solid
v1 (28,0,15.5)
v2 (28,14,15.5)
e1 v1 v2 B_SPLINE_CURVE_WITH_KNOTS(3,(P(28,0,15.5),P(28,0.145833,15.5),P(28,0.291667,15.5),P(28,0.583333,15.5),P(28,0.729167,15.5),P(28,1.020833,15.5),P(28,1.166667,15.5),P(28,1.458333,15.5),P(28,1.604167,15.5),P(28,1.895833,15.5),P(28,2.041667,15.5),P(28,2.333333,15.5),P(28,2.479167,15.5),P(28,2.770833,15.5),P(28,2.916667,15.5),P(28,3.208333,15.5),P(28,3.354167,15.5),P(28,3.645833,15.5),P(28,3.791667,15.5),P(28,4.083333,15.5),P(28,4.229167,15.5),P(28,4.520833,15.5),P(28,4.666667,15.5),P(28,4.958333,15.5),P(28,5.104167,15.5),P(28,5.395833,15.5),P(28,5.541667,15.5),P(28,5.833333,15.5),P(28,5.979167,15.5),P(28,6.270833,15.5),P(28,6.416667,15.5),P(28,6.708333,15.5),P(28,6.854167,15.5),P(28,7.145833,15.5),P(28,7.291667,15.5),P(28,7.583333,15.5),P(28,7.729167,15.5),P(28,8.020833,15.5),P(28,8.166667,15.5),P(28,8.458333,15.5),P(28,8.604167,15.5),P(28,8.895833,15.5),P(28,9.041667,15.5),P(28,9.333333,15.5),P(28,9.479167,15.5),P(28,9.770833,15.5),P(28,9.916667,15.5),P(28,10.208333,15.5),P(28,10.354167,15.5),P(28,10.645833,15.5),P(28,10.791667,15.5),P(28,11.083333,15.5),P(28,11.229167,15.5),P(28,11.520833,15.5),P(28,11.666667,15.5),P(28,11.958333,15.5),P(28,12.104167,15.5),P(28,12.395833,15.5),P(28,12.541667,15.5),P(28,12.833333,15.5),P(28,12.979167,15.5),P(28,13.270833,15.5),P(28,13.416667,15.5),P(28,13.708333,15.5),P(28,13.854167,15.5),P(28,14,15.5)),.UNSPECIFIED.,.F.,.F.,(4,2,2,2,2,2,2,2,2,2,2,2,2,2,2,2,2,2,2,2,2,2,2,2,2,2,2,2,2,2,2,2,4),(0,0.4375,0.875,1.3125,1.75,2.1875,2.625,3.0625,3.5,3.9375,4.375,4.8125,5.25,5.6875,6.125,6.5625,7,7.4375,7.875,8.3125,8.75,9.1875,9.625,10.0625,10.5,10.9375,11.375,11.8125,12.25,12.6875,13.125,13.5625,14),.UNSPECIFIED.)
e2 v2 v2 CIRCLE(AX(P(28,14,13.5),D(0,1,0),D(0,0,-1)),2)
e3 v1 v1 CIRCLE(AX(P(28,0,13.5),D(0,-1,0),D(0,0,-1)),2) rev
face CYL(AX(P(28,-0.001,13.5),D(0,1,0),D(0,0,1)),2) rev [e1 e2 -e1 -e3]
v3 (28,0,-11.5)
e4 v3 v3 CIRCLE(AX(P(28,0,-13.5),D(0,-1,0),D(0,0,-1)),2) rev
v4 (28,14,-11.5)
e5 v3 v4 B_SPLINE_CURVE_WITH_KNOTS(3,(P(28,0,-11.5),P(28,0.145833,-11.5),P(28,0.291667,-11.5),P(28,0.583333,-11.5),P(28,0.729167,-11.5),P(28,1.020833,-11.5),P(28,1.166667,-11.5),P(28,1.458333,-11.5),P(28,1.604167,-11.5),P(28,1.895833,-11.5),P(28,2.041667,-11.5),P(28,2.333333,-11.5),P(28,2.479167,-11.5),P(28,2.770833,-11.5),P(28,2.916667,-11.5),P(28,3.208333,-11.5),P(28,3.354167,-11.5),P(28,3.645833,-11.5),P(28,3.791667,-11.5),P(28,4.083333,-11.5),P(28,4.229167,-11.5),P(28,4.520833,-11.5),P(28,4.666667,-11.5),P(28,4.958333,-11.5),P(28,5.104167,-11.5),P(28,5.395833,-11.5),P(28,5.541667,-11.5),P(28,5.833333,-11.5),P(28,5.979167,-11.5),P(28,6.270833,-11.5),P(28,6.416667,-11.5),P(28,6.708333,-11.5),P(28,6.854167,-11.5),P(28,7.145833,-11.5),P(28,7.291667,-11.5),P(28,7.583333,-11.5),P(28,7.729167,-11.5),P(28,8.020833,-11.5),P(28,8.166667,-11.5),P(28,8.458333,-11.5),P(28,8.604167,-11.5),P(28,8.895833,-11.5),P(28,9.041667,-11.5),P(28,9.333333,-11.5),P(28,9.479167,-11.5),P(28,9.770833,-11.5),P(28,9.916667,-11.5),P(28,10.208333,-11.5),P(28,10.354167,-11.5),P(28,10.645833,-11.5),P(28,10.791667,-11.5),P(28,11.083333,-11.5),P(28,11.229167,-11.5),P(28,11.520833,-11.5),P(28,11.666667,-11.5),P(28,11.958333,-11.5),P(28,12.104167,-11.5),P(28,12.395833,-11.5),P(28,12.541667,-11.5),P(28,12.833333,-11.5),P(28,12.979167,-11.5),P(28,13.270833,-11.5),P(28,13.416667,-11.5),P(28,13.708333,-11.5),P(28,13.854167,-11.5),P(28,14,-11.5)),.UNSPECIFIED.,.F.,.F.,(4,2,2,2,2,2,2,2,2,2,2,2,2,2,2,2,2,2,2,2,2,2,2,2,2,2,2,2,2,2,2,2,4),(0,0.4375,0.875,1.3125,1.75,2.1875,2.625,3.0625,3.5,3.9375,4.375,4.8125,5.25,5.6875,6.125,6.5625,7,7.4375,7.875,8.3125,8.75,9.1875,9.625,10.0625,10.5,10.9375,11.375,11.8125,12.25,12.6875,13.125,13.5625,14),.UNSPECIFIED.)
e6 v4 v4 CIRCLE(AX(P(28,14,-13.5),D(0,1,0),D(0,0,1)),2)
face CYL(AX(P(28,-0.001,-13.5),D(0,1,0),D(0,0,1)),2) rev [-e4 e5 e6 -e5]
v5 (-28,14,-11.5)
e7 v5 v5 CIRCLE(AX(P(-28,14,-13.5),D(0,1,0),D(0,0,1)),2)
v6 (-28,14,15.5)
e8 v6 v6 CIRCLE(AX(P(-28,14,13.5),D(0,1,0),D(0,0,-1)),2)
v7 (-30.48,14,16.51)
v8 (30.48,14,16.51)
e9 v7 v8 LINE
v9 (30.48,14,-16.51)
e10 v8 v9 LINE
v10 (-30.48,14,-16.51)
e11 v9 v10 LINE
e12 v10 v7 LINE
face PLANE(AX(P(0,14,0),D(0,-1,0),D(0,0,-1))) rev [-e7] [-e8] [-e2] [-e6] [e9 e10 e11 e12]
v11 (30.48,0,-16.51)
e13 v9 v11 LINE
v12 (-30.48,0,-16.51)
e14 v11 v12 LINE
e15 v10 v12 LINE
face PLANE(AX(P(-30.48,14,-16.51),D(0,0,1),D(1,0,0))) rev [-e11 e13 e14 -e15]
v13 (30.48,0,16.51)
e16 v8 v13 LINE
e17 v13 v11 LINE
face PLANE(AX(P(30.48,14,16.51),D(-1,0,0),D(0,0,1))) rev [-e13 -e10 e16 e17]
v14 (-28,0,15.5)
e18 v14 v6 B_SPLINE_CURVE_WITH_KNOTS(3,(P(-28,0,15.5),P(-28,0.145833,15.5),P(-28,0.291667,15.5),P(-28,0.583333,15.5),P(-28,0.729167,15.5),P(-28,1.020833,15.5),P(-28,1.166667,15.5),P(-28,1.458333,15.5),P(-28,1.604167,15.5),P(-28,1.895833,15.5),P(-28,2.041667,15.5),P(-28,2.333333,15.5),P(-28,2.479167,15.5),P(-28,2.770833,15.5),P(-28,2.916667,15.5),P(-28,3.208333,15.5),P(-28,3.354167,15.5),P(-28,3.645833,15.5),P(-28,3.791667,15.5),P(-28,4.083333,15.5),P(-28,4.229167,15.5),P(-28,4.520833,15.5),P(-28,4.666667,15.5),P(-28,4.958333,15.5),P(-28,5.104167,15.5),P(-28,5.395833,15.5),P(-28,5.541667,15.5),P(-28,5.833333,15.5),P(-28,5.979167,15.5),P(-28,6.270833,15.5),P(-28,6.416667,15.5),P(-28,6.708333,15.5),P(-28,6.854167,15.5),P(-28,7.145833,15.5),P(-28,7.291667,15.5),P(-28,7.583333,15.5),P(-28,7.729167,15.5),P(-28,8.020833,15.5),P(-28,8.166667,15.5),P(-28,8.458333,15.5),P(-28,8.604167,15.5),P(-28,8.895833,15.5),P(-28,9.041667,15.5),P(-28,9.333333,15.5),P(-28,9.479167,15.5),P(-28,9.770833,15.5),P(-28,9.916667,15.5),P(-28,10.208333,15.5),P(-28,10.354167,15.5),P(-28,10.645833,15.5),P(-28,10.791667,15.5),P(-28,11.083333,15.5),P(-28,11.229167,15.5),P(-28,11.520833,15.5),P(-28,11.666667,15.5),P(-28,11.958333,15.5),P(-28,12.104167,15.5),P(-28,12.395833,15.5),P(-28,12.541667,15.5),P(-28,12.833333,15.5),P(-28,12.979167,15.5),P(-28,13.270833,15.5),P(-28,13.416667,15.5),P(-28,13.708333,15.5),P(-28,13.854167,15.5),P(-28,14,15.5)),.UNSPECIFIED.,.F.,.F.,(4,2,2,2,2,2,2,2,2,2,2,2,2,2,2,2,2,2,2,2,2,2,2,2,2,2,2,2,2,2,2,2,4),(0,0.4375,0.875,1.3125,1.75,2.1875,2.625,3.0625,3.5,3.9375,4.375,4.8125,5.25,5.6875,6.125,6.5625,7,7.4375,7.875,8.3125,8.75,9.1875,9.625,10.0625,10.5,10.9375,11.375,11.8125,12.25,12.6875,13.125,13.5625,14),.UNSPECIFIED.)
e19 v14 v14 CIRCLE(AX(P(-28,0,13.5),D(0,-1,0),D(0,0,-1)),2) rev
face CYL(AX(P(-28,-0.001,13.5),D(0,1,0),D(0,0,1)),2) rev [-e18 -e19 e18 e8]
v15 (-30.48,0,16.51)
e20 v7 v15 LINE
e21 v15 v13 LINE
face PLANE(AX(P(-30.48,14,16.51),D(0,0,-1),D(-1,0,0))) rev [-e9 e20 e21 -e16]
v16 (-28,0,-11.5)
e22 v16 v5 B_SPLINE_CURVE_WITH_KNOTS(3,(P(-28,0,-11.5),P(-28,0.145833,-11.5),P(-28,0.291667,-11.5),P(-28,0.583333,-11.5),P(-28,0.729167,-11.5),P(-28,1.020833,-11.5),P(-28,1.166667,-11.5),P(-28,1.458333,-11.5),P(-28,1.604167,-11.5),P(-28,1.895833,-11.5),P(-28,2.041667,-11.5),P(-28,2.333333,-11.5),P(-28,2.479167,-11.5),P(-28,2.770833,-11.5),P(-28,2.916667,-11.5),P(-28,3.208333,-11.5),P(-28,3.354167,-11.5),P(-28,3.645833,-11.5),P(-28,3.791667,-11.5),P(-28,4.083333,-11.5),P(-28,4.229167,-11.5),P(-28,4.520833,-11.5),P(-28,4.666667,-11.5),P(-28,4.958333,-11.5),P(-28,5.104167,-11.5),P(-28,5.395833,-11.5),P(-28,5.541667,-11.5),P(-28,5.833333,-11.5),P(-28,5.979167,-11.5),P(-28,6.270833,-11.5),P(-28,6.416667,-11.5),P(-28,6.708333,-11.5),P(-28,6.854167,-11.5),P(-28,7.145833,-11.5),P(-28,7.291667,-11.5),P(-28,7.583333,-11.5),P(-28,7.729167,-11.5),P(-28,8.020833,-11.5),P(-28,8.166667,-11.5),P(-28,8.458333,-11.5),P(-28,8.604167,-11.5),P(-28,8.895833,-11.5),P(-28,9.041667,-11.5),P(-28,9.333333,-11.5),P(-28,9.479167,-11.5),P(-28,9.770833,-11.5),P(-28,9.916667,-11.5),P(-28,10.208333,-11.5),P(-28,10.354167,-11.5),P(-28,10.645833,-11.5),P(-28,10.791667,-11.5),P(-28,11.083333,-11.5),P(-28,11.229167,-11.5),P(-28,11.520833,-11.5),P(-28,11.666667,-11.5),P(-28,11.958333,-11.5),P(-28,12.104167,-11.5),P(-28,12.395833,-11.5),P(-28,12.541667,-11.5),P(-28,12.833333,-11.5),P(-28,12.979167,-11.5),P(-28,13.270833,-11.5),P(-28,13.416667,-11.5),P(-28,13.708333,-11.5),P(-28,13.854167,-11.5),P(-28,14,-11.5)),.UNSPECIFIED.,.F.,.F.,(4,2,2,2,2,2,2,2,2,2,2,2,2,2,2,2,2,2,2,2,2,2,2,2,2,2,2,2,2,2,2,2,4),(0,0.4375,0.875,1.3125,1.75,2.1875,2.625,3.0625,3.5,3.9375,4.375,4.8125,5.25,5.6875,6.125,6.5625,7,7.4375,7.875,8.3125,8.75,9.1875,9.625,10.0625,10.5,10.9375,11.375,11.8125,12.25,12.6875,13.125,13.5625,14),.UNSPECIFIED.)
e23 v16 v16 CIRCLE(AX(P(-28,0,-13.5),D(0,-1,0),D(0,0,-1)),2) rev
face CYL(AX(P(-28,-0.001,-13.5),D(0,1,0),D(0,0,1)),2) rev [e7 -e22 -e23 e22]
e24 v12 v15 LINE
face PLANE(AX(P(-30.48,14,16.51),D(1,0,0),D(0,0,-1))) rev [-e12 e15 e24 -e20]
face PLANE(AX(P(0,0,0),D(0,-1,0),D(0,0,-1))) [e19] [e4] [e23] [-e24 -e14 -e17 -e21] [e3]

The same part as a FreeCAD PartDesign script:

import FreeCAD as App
import Part
import Sketcher

V = App.Vector

doc = App.newDocument("Part")
params = doc.addObject("Spreadsheet::Sheet", "Params")
for row, (alias, value) in enumerate([
    ("sketch1_width", "60.96 mm"),
    ("sketch1_height", "33.02 mm"),
    ("pad1_length", "14 mm"),
    ("sketch2_diameter", "4 mm"),
    ("sketch3_diameter", "4 mm"),
    ("sketch4_diameter", "4 mm"),
    ("sketch5_diameter", "4 mm"),
], start=1):
    params.set(f"A{row}", alias)
    params.set(f"B{row}", "=" + value)
    params.setAlias(f"B{row}", alias)

body = doc.addObject("PartDesign::Body", "Body")

# Sketch on XZ plane
sketch1 = doc.addObject("Sketcher::SketchObject", "Sketch")
body.addObject(sketch1)
sketch1.AttachmentSupport = (doc.XZ_Plane, [""])
sketch1.MapMode = "FlatFace"
sketch1.addGeometry([
    Part.LineSegment(V(-30, -17, 0), V(-30, 17, 0)),
    Part.LineSegment(V(-30, 17, 0), V(30, 17, 0)),
    Part.LineSegment(V(30, 17, 0), V(30, -17, 0)),
    Part.LineSegment(V(30, -17, 0), V(-30, -17, 0)),
], False)
sketch1.addConstraint([
    Sketcher.Constraint("Coincident", 0, 2, 1, 1),
    Sketcher.Constraint("Coincident", 1, 2, 2, 1),
    Sketcher.Constraint("Coincident", 2, 2, 3, 1),
    Sketcher.Constraint("Coincident", 3, 2, 0, 1),
    Sketcher.Constraint("Vertical", 0),
    Sketcher.Constraint("Horizontal", 1),
    Sketcher.Constraint("Vertical", 2),
    Sketcher.Constraint("Horizontal", 3),
    Sketcher.Constraint("Symmetric", 0, 2, 2, 2, -1, 1),
    Sketcher.Constraint("DistanceX", 1, 1, 1, 2, 60.96),
    Sketcher.Constraint("DistanceY", 0, 1, 0, 2, 33.02),
])
sketch1.setExpression("Constraints[9]", "Params.sketch1_width")
sketch1.setExpression("Constraints[10]", "Params.sketch1_height")
pad1 = doc.addObject("PartDesign::Pad", "Pad")
body.addObject(pad1)
pad1.Profile = sketch1
pad1.setExpression("Length", "Params.pad1_length")
pad1.Reversed = True

# Sketch on XZ plane
sketch2 = doc.addObject("Sketcher::SketchObject", "Sketch001")
body.addObject(sketch2)
sketch2.AttachmentSupport = (doc.XZ_Plane, [""])
sketch2.MapMode = "FlatFace"
sketch2.AttachmentOffset = App.Placement(V(0, 0, -14), App.Rotation())
sketch2.addGeometry(Part.Circle(V(-28, -13.5, 0), V(0, 0, 1), 2), False)
sketch2.addConstraint([
    Sketcher.Constraint("Diameter", 0, 4.0),
    Sketcher.Constraint("DistanceX", 0, 3, -1, 1, 28.0),
    Sketcher.Constraint("DistanceY", 0, 3, -1, 1, 13.5),
])
sketch2.setExpression("Constraints[0]", "Params.sketch2_diameter")
pocket1 = doc.addObject("PartDesign::Pocket", "Pocket")
body.addObject(pocket1)
pocket1.Profile = sketch2
pocket1.Type = "UpToFirst"
pocket1.Reversed = True

# Sketch on XZ plane
sketch3 = doc.addObject("Sketcher::SketchObject", "Sketch002")
body.addObject(sketch3)
sketch3.AttachmentSupport = (doc.XZ_Plane, [""])
sketch3.MapMode = "FlatFace"
sketch3.AttachmentOffset = App.Placement(V(0, 0, -14), App.Rotation())
sketch3.addGeometry(Part.Circle(V(28, -13.5, 0), V(0, 0, 1), 2), False)
sketch3.addConstraint([
    Sketcher.Constraint("Diameter", 0, 4.0),
    Sketcher.Constraint("DistanceX", -1, 1, 0, 3, 28.0),
    Sketcher.Constraint("DistanceY", 0, 3, -1, 1, 13.5),
])
sketch3.setExpression("Constraints[0]", "Params.sketch3_diameter")
pocket2 = doc.addObject("PartDesign::Pocket", "Pocket001")
body.addObject(pocket2)
pocket2.Profile = sketch3
pocket2.Type = "UpToFirst"
pocket2.Reversed = True

# Sketch on XZ plane
sketch4 = doc.addObject("Sketcher::SketchObject", "Sketch003")
body.addObject(sketch4)
sketch4.AttachmentSupport = (doc.XZ_Plane, [""])
sketch4.MapMode = "FlatFace"
sketch4.AttachmentOffset = App.Placement(V(0, 0, -14), App.Rotation())
sketch4.addGeometry(Part.Circle(V(28, 13.5, 0), V(0, 0, 1), 2), False)
sketch4.addConstraint([
    Sketcher.Constraint("Diameter", 0, 4.0),
    Sketcher.Constraint("DistanceX", -1, 1, 0, 3, 28.0),
    Sketcher.Constraint("DistanceY", -1, 1, 0, 3, 13.5),
])
sketch4.setExpression("Constraints[0]", "Params.sketch4_diameter")
pocket3 = doc.addObject("PartDesign::Pocket", "Pocket002")
body.addObject(pocket3)
pocket3.Profile = sketch4
pocket3.Type = "UpToFirst"
pocket3.Reversed = True

# Sketch on XZ plane
sketch5 = doc.addObject("Sketcher::SketchObject", "Sketch004")
body.addObject(sketch5)
sketch5.AttachmentSupport = (doc.XZ_Plane, [""])
sketch5.MapMode = "FlatFace"
sketch5.AttachmentOffset = App.Placement(V(0, 0, -14), App.Rotation())
sketch5.addGeometry(Part.Circle(V(-28, 13.5, 0), V(0, 0, 1), 2), False)
sketch5.addConstraint([
    Sketcher.Constraint("Diameter", 0, 4.0),
    Sketcher.Constraint("DistanceX", 0, 3, -1, 1, 28.0),
    Sketcher.Constraint("DistanceY", -1, 1, 0, 3, 13.5),
])
sketch5.setExpression("Constraints[0]", "Params.sketch5_diameter")
pocket4 = doc.addObject("PartDesign::Pocket", "Pocket003")
body.addObject(pocket4)
pocket4.Profile = sketch5
pocket4.Type = "UpToFirst"
pocket4.Reversed = True

doc.recompute()
